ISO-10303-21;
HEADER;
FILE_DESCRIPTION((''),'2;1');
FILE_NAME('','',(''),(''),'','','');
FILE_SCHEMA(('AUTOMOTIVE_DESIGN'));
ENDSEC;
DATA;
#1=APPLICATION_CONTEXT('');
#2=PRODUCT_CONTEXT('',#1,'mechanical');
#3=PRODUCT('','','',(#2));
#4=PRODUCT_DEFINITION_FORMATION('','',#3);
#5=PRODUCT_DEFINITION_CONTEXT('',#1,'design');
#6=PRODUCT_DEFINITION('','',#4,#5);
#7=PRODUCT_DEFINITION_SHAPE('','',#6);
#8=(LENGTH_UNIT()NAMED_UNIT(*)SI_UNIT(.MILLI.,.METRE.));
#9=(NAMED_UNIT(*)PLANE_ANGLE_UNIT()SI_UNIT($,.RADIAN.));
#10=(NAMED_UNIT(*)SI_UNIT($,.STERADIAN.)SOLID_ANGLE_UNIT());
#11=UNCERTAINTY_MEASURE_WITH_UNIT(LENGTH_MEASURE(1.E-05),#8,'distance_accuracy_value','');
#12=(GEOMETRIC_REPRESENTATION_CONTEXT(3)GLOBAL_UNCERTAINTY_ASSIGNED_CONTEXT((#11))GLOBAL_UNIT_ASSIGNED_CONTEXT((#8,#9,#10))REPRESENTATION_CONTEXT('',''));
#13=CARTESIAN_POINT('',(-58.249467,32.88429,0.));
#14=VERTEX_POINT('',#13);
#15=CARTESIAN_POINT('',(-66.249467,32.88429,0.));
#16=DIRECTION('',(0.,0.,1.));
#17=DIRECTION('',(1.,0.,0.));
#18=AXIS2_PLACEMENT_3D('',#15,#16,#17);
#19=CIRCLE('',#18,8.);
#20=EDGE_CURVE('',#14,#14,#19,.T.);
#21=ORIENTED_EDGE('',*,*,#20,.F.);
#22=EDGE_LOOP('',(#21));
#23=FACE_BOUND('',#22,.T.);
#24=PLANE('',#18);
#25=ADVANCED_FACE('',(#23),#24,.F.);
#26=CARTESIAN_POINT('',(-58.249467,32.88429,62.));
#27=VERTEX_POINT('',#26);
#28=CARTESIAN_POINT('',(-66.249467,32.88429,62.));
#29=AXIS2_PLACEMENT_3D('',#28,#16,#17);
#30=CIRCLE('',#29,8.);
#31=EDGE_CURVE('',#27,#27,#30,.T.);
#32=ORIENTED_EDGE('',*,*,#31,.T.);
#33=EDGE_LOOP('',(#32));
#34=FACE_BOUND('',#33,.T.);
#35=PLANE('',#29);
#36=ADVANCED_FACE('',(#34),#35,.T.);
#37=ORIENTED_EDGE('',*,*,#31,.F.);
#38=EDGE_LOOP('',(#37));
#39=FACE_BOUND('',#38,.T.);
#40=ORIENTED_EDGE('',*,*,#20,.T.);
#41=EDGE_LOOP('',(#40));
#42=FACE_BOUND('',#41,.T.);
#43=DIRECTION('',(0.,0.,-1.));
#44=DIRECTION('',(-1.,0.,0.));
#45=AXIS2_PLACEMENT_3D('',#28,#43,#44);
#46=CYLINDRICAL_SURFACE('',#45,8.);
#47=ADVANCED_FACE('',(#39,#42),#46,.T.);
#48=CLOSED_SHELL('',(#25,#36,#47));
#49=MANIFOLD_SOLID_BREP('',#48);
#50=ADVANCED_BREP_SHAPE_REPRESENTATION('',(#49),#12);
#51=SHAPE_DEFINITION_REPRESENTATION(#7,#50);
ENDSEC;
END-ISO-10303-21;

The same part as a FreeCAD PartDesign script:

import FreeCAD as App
import Part
import Sketcher
Q = App.Units.Quantity

doc = App.newDocument("Part")
body = doc.addObject("PartDesign::Body", "Body")

sketch1 = body.newObject("Sketcher::SketchObject", "Sketch")
sketch1.AttachmentSupport = (doc.getObject("XY_Plane"), [""])
sketch1.MapMode = "FlatFace"
sketch1.addGeometry(Part.Circle(App.Vector(-66.249467, 32.88429, 0), App.Vector(0, 0, 1), 8), False)
sketch1.addConstraint([
    Sketcher.Constraint("Diameter", 0, Q("16 mm")),
    Sketcher.Constraint("DistanceY", -1, 1, 0, 3, Q("32.88429 mm")),
    Sketcher.Constraint("DistanceX", 0, 3, -1, 1, Q("66.249467 mm")),
])
pad1 = body.newObject("PartDesign::Pad", "Pad")
pad1.Profile = sketch1
pad1.Length = 62

doc.recompute()
